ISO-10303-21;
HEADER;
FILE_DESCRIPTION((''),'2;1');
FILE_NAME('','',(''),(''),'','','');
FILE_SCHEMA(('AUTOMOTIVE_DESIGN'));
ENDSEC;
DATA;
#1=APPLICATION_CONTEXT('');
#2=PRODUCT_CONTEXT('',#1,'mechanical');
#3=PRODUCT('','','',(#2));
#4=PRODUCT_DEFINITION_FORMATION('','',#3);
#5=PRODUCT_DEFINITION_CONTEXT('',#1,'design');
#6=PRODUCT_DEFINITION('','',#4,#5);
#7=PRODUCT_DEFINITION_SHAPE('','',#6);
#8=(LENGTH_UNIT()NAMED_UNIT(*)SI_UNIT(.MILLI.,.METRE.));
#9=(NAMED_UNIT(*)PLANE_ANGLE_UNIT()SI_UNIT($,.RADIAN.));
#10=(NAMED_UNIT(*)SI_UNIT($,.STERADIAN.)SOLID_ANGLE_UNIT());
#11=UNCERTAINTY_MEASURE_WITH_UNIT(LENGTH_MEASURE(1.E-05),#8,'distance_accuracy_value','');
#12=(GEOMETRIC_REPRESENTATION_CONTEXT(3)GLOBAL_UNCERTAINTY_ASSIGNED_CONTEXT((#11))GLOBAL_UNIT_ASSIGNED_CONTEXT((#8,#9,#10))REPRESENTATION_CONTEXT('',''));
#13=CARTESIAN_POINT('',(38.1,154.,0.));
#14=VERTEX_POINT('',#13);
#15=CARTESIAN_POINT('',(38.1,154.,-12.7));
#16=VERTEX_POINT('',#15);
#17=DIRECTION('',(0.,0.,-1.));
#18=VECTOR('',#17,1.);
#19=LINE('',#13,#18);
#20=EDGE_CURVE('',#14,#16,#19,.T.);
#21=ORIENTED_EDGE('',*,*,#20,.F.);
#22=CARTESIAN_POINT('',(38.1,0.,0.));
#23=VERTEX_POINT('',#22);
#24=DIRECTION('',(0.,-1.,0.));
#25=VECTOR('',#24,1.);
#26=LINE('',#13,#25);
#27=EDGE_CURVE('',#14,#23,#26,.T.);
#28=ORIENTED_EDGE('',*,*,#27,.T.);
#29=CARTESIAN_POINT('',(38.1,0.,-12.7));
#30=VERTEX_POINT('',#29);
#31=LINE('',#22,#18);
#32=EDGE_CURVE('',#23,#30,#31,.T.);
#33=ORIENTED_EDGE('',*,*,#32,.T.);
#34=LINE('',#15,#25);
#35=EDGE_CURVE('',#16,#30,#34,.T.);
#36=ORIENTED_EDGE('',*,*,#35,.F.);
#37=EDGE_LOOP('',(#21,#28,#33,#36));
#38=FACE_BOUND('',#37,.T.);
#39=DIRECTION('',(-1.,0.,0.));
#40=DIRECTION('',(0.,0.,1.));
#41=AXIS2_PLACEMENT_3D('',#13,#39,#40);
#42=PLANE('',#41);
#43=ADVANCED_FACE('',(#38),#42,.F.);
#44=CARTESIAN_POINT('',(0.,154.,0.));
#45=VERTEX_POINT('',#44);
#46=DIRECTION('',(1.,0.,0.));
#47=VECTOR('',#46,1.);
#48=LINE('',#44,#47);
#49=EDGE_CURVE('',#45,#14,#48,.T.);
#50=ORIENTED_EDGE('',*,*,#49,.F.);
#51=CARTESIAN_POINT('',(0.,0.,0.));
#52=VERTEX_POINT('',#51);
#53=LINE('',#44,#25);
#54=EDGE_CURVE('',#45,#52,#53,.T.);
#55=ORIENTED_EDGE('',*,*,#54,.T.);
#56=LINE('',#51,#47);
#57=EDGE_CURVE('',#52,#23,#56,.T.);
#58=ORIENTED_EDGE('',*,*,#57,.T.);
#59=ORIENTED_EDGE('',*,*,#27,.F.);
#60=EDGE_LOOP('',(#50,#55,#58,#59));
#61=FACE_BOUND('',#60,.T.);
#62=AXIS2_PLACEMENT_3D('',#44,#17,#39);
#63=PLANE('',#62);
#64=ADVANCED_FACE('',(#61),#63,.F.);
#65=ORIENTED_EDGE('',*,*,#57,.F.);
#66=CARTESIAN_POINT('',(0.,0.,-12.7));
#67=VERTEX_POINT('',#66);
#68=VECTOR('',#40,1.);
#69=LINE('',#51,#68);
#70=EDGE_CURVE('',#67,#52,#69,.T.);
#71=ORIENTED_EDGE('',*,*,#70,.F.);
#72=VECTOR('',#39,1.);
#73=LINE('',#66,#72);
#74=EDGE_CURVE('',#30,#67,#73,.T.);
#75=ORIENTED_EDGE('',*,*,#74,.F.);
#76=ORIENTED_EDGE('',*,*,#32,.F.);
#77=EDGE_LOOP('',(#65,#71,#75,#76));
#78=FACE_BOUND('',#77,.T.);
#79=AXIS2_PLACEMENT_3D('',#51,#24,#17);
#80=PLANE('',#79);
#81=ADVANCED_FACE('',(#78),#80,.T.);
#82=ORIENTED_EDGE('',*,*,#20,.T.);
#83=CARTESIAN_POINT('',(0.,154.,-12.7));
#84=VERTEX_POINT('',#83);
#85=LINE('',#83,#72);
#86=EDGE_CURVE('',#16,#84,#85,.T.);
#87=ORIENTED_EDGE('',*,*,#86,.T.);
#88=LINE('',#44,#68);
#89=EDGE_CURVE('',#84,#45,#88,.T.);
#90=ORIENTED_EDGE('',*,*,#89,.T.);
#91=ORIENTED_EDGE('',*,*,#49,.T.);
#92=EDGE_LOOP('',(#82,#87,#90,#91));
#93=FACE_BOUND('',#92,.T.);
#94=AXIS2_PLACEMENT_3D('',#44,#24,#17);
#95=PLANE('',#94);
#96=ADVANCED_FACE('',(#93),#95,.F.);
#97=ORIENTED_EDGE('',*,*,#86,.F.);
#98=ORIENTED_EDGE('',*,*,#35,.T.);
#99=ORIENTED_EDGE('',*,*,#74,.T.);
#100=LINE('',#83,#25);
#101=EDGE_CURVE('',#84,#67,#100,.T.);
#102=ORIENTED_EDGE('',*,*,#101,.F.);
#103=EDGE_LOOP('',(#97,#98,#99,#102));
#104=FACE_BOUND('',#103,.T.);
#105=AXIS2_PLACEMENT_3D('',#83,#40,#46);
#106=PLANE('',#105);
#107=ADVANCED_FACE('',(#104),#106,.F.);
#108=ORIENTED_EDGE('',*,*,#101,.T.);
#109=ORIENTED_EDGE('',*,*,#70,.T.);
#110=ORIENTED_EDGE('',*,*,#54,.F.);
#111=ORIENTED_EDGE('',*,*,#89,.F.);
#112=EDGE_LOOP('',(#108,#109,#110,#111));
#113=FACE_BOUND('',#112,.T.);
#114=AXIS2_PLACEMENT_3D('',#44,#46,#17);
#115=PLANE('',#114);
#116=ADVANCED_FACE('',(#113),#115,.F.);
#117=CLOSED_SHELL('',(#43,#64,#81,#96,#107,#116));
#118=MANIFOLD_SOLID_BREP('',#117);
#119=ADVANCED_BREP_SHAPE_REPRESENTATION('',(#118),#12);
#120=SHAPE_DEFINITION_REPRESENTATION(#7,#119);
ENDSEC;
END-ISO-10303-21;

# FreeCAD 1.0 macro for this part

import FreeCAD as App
import Part
import Sketcher

V = App.Vector
Q = App.Units.Quantity


def add_polygon(sketch, points):
    """Adds a closed chain of lines whose ends are joined by coincident constraints."""
    first, n = sketch.GeometryCount, len(points)
    for a, b in zip(points, points[1:] + points[:1]):
        sketch.addGeometry(Part.LineSegment(App.Vector(*a, 0), App.Vector(*b, 0)), False)
    for i in range(n):
        sketch.addConstraint(Sketcher.Constraint("Coincident", first + i, 2, first + (i + 1) % n, 1))

doc = App.newDocument("Part")
body = doc.addObject("PartDesign::Body", "Body")

sketch1 = body.newObject("Sketcher::SketchObject", "Sketch")
sketch1.AttachmentSupport = (doc.getObject("XZ_Plane"), [""])
sketch1.MapMode = "FlatFace"
add_polygon(sketch1, [(0, -12.7), (0, 0), (38.1, 0), (38.1, -12.7)])
sketch1.addConstraint(Sketcher.Constraint("Vertical", 0))
sketch1.addConstraint(Sketcher.Constraint("Horizontal", 1))
sketch1.addConstraint(Sketcher.Constraint("Vertical", 2))
sketch1.addConstraint(Sketcher.Constraint("Horizontal", 3))
sketch1.addConstraint(Sketcher.Constraint("Coincident", 0, 2, -1, 1))
sketch1.addConstraint(Sketcher.Constraint("DistanceX", 1, 1, 1, 2, Q("1.5 in")))
sketch1.addConstraint(Sketcher.Constraint("DistanceY", 0, 1, 0, 2, Q("0.5 in")))
pad1 = body.newObject("PartDesign::Pad", "Pad")
pad1.Profile = sketch1
pad1.Length = 154
pad1.Reversed = True

doc.recompute()
